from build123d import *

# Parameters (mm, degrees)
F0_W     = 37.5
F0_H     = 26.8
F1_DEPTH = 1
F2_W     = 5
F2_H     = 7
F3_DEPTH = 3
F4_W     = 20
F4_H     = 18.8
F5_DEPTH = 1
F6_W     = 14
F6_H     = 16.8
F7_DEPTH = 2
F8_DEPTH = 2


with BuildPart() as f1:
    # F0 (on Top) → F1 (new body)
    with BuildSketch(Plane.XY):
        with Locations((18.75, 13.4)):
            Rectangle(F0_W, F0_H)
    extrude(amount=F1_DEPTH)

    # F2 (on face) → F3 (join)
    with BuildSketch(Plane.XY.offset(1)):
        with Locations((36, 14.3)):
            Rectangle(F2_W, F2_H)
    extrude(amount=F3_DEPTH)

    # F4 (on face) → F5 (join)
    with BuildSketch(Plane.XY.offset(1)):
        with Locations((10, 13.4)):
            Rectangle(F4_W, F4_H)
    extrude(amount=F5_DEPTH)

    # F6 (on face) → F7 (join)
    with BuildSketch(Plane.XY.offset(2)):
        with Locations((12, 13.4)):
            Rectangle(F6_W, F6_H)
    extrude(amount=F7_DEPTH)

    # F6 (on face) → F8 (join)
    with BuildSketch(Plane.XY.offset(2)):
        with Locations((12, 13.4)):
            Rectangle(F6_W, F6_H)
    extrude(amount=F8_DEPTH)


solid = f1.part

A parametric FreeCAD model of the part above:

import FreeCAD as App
import Part
import Sketcher

doc = App.newDocument("Part")
body = doc.addObject("PartDesign::Body", "Body")

# Sketch on XY plane
sketch1 = body.newObject("Sketcher::SketchObject", "Sketch")
sketch1.AttachmentSupport = (doc.getObject("XY_Plane"), [""])
sketch1.MapMode = "FlatFace"
sketch1.addGeometry(Part.LineSegment(App.Vector(0, 26.8, 0), App.Vector(0, 0, 0)), False)
sketch1.addGeometry(Part.LineSegment(App.Vector(0, 0, 0), App.Vector(37.5, 0, 0)), False)
sketch1.addGeometry(Part.LineSegment(App.Vector(37.5, 0, 0), App.Vector(37.5, 26.8, 0)), False)
sketch1.addGeometry(Part.LineSegment(App.Vector(37.5, 26.8, 0), App.Vector(0, 26.8, 0)), False)
sketch1.addConstraint(Sketcher.Constraint("Coincident", 0, 2, 1, 1))
sketch1.addConstraint(Sketcher.Constraint("Coincident", 1, 2, 2, 1))
sketch1.addConstraint(Sketcher.Constraint("Coincident", 2, 2, 3, 1))
sketch1.addConstraint(Sketcher.Constraint("Coincident", 3, 2, 0, 1))
sketch1.addConstraint(Sketcher.Constraint("Vertical", 0))
sketch1.addConstraint(Sketcher.Constraint("Horizontal", 1))
sketch1.addConstraint(Sketcher.Constraint("Vertical", 2))
sketch1.addConstraint(Sketcher.Constraint("Horizontal", 3))
sketch1.addConstraint(Sketcher.Constraint("Coincident", 0, 2, -1, 1))
sketch1.addConstraint(Sketcher.Constraint("DistanceX", 1, 1, 1, 2, 37.5))
sketch1.addConstraint(Sketcher.Constraint("DistanceY", 0, 2, 0, 1, 26.8))
pad1 = body.newObject("PartDesign::Pad", "Pad")
pad1.Profile = sketch1
pad1.Length = 1

# Sketch on XY plane
sketch2 = body.newObject("Sketcher::SketchObject", "Sketch001")
sketch2.AttachmentSupport = (doc.getObject("XY_Plane"), [""])
sketch2.MapMode = "FlatFace"
sketch2.AttachmentOffset = App.Placement(App.Vector(0, 0, 1), App.Rotation())
sketch2.addGeometry(Part.LineSegment(App.Vector(33.5, 17.8, 0), App.Vector(33.5, 10.8, 0)), False)
sketch2.addGeometry(Part.LineSegment(App.Vector(33.5, 10.8, 0), App.Vector(38.5, 10.8, 0)), False)
sketch2.addGeometry(Part.LineSegment(App.Vector(38.5, 10.8, 0), App.Vector(38.5, 17.8, 0)), False)
sketch2.addGeometry(Part.LineSegment(App.Vector(38.5, 17.8, 0), App.Vector(33.5, 17.8, 0)), False)
sketch2.addConstraint(Sketcher.Constraint("Coincident", 0, 2, 1, 1))
sketch2.addConstraint(Sketcher.Constraint("Coincident", 1, 2, 2, 1))
sketch2.addConstraint(Sketcher.Constraint("Coincident", 2, 2, 3, 1))
sketch2.addConstraint(Sketcher.Constraint("Coincident", 3, 2, 0, 1))
sketch2.addConstraint(Sketcher.Constraint("Vertical", 0))
sketch2.addConstraint(Sketcher.Constraint("Horizontal", 1))
sketch2.addConstraint(Sketcher.Constraint("Vertical", 2))
sketch2.addConstraint(Sketcher.Constraint("Horizontal", 3))
sketch2.addConstraint(Sketcher.Constraint("DistanceX", 1, 1, 1, 2, 5.0))
sketch2.addConstraint(Sketcher.Constraint("DistanceY", 0, 2, 0, 1, 7.0))
sketch2.addConstraint(Sketcher.Constraint("DistanceX", -1, 1, 0, 2, 33.5))
sketch2.addConstraint(Sketcher.Constraint("DistanceY", -1, 1, 0, 2, 10.8))
pad2 = body.newObject("PartDesign::Pad", "Pad001")
pad2.Profile = sketch2
pad2.Length = 3

# Sketch on XY plane
sketch3 = body.newObject("Sketcher::SketchObject", "Sketch002")
sketch3.AttachmentSupport = (doc.getObject("XY_Plane"), [""])
sketch3.MapMode = "FlatFace"
sketch3.AttachmentOffset = App.Placement(App.Vector(0, 0, 1), App.Rotation())
sketch3.addGeometry(Part.LineSegment(App.Vector(0, 22.8, 0), App.Vector(0, 4, 0)), False)
sketch3.addGeometry(Part.LineSegment(App.Vector(0, 4, 0), App.Vector(20, 4, 0)), False)
sketch3.addGeometry(Part.LineSegment(App.Vector(20, 4, 0), App.Vector(20, 22.8, 0)), False)
sketch3.addGeometry(Part.LineSegment(App.Vector(20, 22.8, 0), App.Vector(0, 22.8, 0)), False)
sketch3.addConstraint(Sketcher.Constraint("Coincident", 0, 2, 1, 1))
sketch3.addConstraint(Sketcher.Constraint("Coincident", 1, 2, 2, 1))
sketch3.addConstraint(Sketcher.Constraint("Coincident", 2, 2, 3, 1))
sketch3.addConstraint(Sketcher.Constraint("Coincident", 3, 2, 0, 1))
sketch3.addConstraint(Sketcher.Constraint("Vertical", 0))
sketch3.addConstraint(Sketcher.Constraint("Horizontal", 1))
sketch3.addConstraint(Sketcher.Constraint("Vertical", 2))
sketch3.addConstraint(Sketcher.Constraint("Horizontal", 3))
sketch3.addConstraint(Sketcher.Constraint("PointOnObject", 0, 2, -2))
sketch3.addConstraint(Sketcher.Constraint("DistanceX", 1, 1, 1, 2, 20.0))
sketch3.addConstraint(Sketcher.Constraint("DistanceY", 0, 2, 0, 1, 18.8))
sketch3.addConstraint(Sketcher.Constraint("DistanceY", -1, 1, 0, 2, 4.0))
pad3 = body.newObject("PartDesign::Pad", "Pad002")
pad3.Profile = sketch3
pad3.Length = 1

# Sketch on XY plane
sketch4 = body.newObject("Sketcher::SketchObject", "Sketch003")
sketch4.AttachmentSupport = (doc.getObject("XY_Plane"), [""])
sketch4.MapMode = "FlatFace"
sketch4.AttachmentOffset = App.Placement(App.Vector(0, 0, 2), App.Rotation())
sketch4.addGeometry(Part.LineSegment(App.Vector(5, 21.8, 0), App.Vector(5, 5, 0)), False)
sketch4.addGeometry(Part.LineSegment(App.Vector(5, 5, 0), App.Vector(19, 5, 0)), False)
sketch4.addGeometry(Part.LineSegment(App.Vector(19, 5, 0), App.Vector(19, 21.8, 0)), False)
sketch4.addGeometry(Part.LineSegment(App.Vector(19, 21.8, 0), App.Vector(5, 21.8, 0)), False)
sketch4.addConstraint(Sketcher.Constraint("Coincident", 0, 2, 1, 1))
sketch4.addConstraint(Sketcher.Constraint("Coincident", 1, 2, 2, 1))
sketch4.addConstraint(Sketcher.Constraint("Coincident", 2, 2, 3, 1))
sketch4.addConstraint(Sketcher.Constraint("Coincident", 3, 2, 0, 1))
sketch4.addConstraint(Sketcher.Constraint("Vertical", 0))
sketch4.addConstraint(Sketcher.Constraint("Horizontal", 1))
sketch4.addConstraint(Sketcher.Constraint("Vertical", 2))
sketch4.addConstraint(Sketcher.Constraint("Horizontal", 3))
sketch4.addConstraint(Sketcher.Constraint("DistanceX", 1, 1, 1, 2, 14.0))
sketch4.addConstraint(Sketcher.Constraint("DistanceY", 0, 2, 0, 1, 16.8))
sketch4.addConstraint(Sketcher.Constraint("DistanceX", -1, 1, 0, 2, 5.0))
sketch4.addConstraint(Sketcher.Constraint("DistanceY", -1, 1, 0, 2, 5.0))
pad4 = body.newObject("PartDesign::Pad", "Pad003")
pad4.Profile = sketch4
pad4.Length = 2

# Sketch on XY plane
sketch5 = body.newObject("Sketcher::SketchObject", "Sketch004")
sketch5.AttachmentSupport = (doc.getObject("XY_Plane"), [""])
sketch5.MapMode = "FlatFace"
sketch5.AttachmentOffset = App.Placement(App.Vector(0, 0, 2), App.Rotation())
sketch5.addGeometry(Part.LineSegment(App.Vector(5, 21.8, 0), App.Vector(5, 5, 0)), False)
sketch5.addGeometry(Part.LineSegment(App.Vector(5, 5, 0), App.Vector(19, 5, 0)), False)
sketch5.addGeometry(Part.LineSegment(App.Vector(19, 5, 0), App.Vector(19, 21.8, 0)), False)
sketch5.addGeometry(Part.LineSegment(App.Vector(19, 21.8, 0), App.Vector(5, 21.8, 0)), False)
sketch5.addConstraint(Sketcher.Constraint("Coincident", 0, 2, 1, 1))
sketch5.addConstraint(Sketcher.Constraint("Coincident", 1, 2, 2, 1))
sketch5.addConstraint(Sketcher.Constraint("Coincident", 2, 2, 3, 1))
sketch5.addConstraint(Sketcher.Constraint("Coincident", 3, 2, 0, 1))
sketch5.addConstraint(Sketcher.Constraint("Vertical", 0))
sketch5.addConstraint(Sketcher.Constraint("Horizontal", 1))
sketch5.addConstraint(Sketcher.Constraint("Vertical", 2))
sketch5.addConstraint(Sketcher.Constraint("Horizontal", 3))
sketch5.addConstraint(Sketcher.Constraint("DistanceX", 1, 1, 1, 2, 14.0))
sketch5.addConstraint(Sketcher.Constraint("DistanceY", 0, 2, 0, 1, 16.8))
sketch5.addConstraint(Sketcher.Constraint("DistanceX", -1, 1, 0, 2, 5.0))
sketch5.addConstraint(Sketcher.Constraint("DistanceY", -1, 1, 0, 2, 5.0))
pad5 = body.newObject("PartDesign::Pad", "Pad004")
pad5.Profile = sketch5
pad5.Length = 2

doc.recompute()
